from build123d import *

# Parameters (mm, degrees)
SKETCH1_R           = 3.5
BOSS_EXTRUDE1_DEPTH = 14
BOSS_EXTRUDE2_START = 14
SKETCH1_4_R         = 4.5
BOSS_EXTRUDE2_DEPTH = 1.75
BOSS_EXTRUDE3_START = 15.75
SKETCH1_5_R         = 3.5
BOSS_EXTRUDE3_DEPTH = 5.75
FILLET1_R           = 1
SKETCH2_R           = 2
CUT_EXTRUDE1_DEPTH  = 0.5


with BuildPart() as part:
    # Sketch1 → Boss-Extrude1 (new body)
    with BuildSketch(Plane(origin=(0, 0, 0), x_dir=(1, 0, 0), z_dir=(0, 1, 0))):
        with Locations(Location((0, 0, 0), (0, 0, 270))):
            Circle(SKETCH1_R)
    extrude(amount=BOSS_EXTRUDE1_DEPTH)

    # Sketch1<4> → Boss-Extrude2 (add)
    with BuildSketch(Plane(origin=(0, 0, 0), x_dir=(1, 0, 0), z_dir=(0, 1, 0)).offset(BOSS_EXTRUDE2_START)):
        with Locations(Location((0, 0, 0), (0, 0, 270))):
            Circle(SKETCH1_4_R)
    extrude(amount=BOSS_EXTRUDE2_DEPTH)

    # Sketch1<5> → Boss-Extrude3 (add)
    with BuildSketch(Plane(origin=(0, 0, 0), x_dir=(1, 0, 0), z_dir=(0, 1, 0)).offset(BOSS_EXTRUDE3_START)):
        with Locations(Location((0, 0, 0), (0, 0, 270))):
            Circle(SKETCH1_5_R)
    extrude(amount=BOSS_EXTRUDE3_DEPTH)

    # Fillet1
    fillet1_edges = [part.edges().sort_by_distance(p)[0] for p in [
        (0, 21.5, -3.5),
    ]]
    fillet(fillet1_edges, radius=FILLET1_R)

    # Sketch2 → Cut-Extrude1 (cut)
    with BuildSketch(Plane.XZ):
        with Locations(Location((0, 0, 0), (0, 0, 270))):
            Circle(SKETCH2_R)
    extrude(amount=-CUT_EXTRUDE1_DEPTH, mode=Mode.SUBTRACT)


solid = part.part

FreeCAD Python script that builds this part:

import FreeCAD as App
import Part
import Sketcher
from FreeCAD import Vector
Q = App.Units.Quantity


def edges_at(feature, points):
    """Names of the edges that pass closest to the given points."""
    edges = feature.Shape.Edges
    near = lambda p: min(range(len(edges)), key=lambda i: edges[i].distToShape(Part.Vertex(*p))[0])
    return sorted({f"Edge{near(p) + 1}" for p in points})

doc = App.newDocument("Part")
params = doc.addObject("Spreadsheet::Sheet", "Params")
for row, (alias, value) in enumerate([
    ("sketch1_diameter", "7 mm"),
    ("pad1_length", "14 mm"),
    ("sketch2_diameter", "9 mm"),
    ("pad2_length", "1.75 mm"),
    ("sketch3_diameter", "7 mm"),
    ("pad3_length", "5.75 mm"),
    ("fillet_radius", "1 mm"),
    ("sketch4_diameter", "4 mm"),
    ("pocket1_length", "0.5 mm"),
], start=1):
    params.set(f"A{row}", alias)
    params.set(f"B{row}", "=" + value)
    params.setAlias(f"B{row}", alias)

body = doc.addObject("PartDesign::Body", "Body")

# Sketch on XZ plane
sketch1 = body.newObject("Sketcher::SketchObject", "Sketch")
sketch1.AttachmentSupport = (doc.getObject("XZ_Plane"), [""])
sketch1.MapMode = "FlatFace"
sketch1.addGeometry(Part.Circle(Vector(0, 0, 0), Vector(0, 0, 1), 3.5), False)
sketch1.addConstraint(Sketcher.Constraint("Coincident", 0, 3, -1, 1))
sketch1.addConstraint(Sketcher.Constraint("Diameter", 0, Q("7 mm")))
sketch1.setExpression("Constraints[1]", "Params.sketch1_diameter")
pad1 = body.newObject("PartDesign::Pad", "Pad")
pad1.Profile = sketch1
pad1.setExpression("Length", "Params.pad1_length")
pad1.Reversed = True

# Sketch on XZ plane
sketch2 = body.newObject("Sketcher::SketchObject", "Sketch001")
sketch2.AttachmentSupport = (doc.getObject("XZ_Plane"), [""])
sketch2.MapMode = "FlatFace"
sketch2.AttachmentOffset = App.Placement(Vector(0, 0, -14), App.Rotation())
sketch2.addGeometry(Part.Circle(Vector(0, 0, 0), Vector(0, 0, 1), 4.5), False)
sketch2.addConstraint(Sketcher.Constraint("Coincident", 0, 3, -1, 1))
sketch2.addConstraint(Sketcher.Constraint("Diameter", 0, Q("9 mm")))
sketch2.setExpression("Constraints[1]", "Params.sketch2_diameter")
pad2 = body.newObject("PartDesign::Pad", "Pad001")
pad2.Profile = sketch2
pad2.setExpression("Length", "Params.pad2_length")
pad2.Reversed = True

# Sketch on XZ plane
sketch3 = body.newObject("Sketcher::SketchObject", "Sketch002")
sketch3.AttachmentSupport = (doc.getObject("XZ_Plane"), [""])
sketch3.MapMode = "FlatFace"
sketch3.AttachmentOffset = App.Placement(Vector(0, 0, -15.75), App.Rotation())
sketch3.addGeometry(Part.Circle(Vector(0, 0, 0), Vector(0, 0, 1), 3.5), False)
sketch3.addConstraint(Sketcher.Constraint("Coincident", 0, 3, -1, 1))
sketch3.addConstraint(Sketcher.Constraint("Diameter", 0, Q("7 mm")))
sketch3.setExpression("Constraints[1]", "Params.sketch3_diameter")
pad3 = body.newObject("PartDesign::Pad", "Pad002")
pad3.Profile = sketch3
pad3.setExpression("Length", "Params.pad3_length")
pad3.Reversed = True
doc.recompute()

fillet = body.newObject("PartDesign::Fillet", "Fillet")
fillet.Base = (pad3, edges_at(pad3, [(0, 21.5, -3.5)]))
fillet.setExpression("Radius", "Params.fillet_radius")

# Sketch on XZ plane
sketch4 = body.newObject("Sketcher::SketchObject", "Sketch003")
sketch4.AttachmentSupport = (doc.getObject("XZ_Plane"), [""])
sketch4.MapMode = "FlatFace"
sketch4.addGeometry(Part.Circle(Vector(0, 0, 0), Vector(0, 0, 1), 2), False)
sketch4.addConstraint(Sketcher.Constraint("Coincident", 0, 3, -1, 1))
sketch4.addConstraint(Sketcher.Constraint("Diameter", 0, Q("4 mm")))
sketch4.setExpression("Constraints[1]", "Params.sketch4_diameter")
pocket1 = body.newObject("PartDesign::Pocket", "Pocket")
pocket1.Profile = sketch4
pocket1.setExpression("Length", "Params.pocket1_length")

doc.recompute()
